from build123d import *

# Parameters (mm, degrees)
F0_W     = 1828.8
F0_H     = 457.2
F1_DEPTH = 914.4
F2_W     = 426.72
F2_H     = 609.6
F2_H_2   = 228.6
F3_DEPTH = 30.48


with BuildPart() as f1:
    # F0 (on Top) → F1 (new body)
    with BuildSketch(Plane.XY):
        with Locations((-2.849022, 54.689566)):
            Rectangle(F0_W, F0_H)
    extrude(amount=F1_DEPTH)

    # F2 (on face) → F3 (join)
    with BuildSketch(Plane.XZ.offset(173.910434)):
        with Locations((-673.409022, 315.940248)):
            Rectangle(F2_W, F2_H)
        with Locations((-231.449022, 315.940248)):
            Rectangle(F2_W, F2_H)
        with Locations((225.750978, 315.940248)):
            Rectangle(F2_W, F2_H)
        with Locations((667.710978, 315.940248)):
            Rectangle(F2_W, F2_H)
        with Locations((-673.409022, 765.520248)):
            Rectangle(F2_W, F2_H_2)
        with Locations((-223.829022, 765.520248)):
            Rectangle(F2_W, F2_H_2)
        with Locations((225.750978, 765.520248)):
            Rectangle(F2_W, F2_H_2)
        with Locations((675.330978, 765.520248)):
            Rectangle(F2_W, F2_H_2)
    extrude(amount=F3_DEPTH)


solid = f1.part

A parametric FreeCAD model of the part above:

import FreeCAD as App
import Part
import Sketcher

V = App.Vector
Q = App.Units.Quantity


def add_polygon(sketch, points):
    """Adds a closed chain of lines whose ends are joined by coincident constraints."""
    first, n = sketch.GeometryCount, len(points)
    for a, b in zip(points, points[1:] + points[:1]):
        sketch.addGeometry(Part.LineSegment(App.Vector(*a, 0), App.Vector(*b, 0)), False)
    for i in range(n):
        sketch.addConstraint(Sketcher.Constraint("Coincident", first + i, 2, first + (i + 1) % n, 1))

doc = App.newDocument("Part")
params = doc.addObject("Spreadsheet::Sheet", "Params")
for row, (alias, value) in enumerate([
    ("sketch1_width", "72 in"),
    ("sketch1_height", "18 in"),
    ("pad1_length", "36 in"),
    ("sketch2_height", "24 in"),
    ("sketch2_height2", "9 in"),
    ("sketch2_width", "16.8 in"),
    ("pad2_length", "1.2 in"),
], start=1):
    params.set(f"A{row}", alias)
    params.set(f"B{row}", "=" + value)
    params.setAlias(f"B{row}", alias)

body = doc.addObject("PartDesign::Body", "Body")

# Sketch on XY plane
sketch1 = body.newObject("Sketcher::SketchObject", "Sketch")
sketch1.AttachmentSupport = (doc.getObject("XY_Plane"), [""])
sketch1.MapMode = "FlatFace"
add_polygon(sketch1, [(-917, 283), (-917, -174), (912, -174), (912, 283)])  # lines 0-3
sketch1.addConstraint(Sketcher.Constraint("Vertical", 0))
sketch1.addConstraint(Sketcher.Constraint("Horizontal", 1))
sketch1.addConstraint(Sketcher.Constraint("Vertical", 2))
sketch1.addConstraint(Sketcher.Constraint("Horizontal", 3))
sketch1.addConstraint(Sketcher.Constraint("DistanceX", 1, 1, 1, 2, Q("72 in")))
sketch1.addConstraint(Sketcher.Constraint("DistanceY", 0, 2, 0, 1, Q("18 in")))
sketch1.addConstraint(Sketcher.Constraint("DistanceX", 0, 2, -1, 1, Q("917.249022 mm")))
sketch1.addConstraint(Sketcher.Constraint("DistanceY", 0, 2, -1, 1, Q("173.910434 mm")))
sketch1.setExpression("Constraints[8]", "Params.sketch1_width")
sketch1.setExpression("Constraints[9]", "Params.sketch1_height")
pad1 = body.newObject("PartDesign::Pad", "Pad")
pad1.Profile = sketch1
pad1.setExpression("Length", "Params.pad1_length")

# Sketch on XZ plane
sketch2 = body.newObject("Sketcher::SketchObject", "Sketch001")
sketch2.AttachmentSupport = (doc.getObject("XZ_Plane"), [""])
sketch2.MapMode = "FlatFace"
sketch2.AttachmentOffset = App.Placement(V(0, 0, 173.910434), App.Rotation())
add_polygon(sketch2, [(-887, 621), (-887, 11), (-460, 11), (-460, 621)])  # lines 0-3
add_polygon(sketch2, [(-445, 621), (-445, 11), (-18, 11), (-18, 621)])  # lines 4-7
add_polygon(sketch2, [(12, 621), (12, 11), (439, 11), (439, 621)])  # lines 8-11
add_polygon(sketch2, [(454, 621), (454, 11), (881, 11), (881, 621)])  # lines 12-15
add_polygon(sketch2, [(-887, 880), (-887, 651), (-460, 651), (-460, 880)])  # lines 16-19
add_polygon(sketch2, [(-437, 880), (-437, 651), (-10, 651), (-10, 880)])  # lines 20-23
add_polygon(sketch2, [(12, 880), (12, 651), (439, 651), (439, 880)])  # lines 24-27
add_polygon(sketch2, [(462, 880), (462, 651), (889, 651), (889, 880)])  # lines 28-31
sketch2.addConstraint(Sketcher.Constraint("Vertical", 0))
sketch2.addConstraint(Sketcher.Constraint("Horizontal", 1))
sketch2.addConstraint(Sketcher.Constraint("Vertical", 2))
sketch2.addConstraint(Sketcher.Constraint("Horizontal", 3))
sketch2.addConstraint(Sketcher.Constraint("Vertical", 4))
sketch2.addConstraint(Sketcher.Constraint("Horizontal", 5))
sketch2.addConstraint(Sketcher.Constraint("Vertical", 6))
sketch2.addConstraint(Sketcher.Constraint("Horizontal", 7))
sketch2.addConstraint(Sketcher.Constraint("Vertical", 8))
sketch2.addConstraint(Sketcher.Constraint("Horizontal", 9))
sketch2.addConstraint(Sketcher.Constraint("Vertical", 10))
sketch2.addConstraint(Sketcher.Constraint("Horizontal", 11))
sketch2.addConstraint(Sketcher.Constraint("Vertical", 12))
sketch2.addConstraint(Sketcher.Constraint("Horizontal", 13))
sketch2.addConstraint(Sketcher.Constraint("Vertical", 14))
sketch2.addConstraint(Sketcher.Constraint("Horizontal", 15))
sketch2.addConstraint(Sketcher.Constraint("Vertical", 16))
sketch2.addConstraint(Sketcher.Constraint("Horizontal", 17))
sketch2.addConstraint(Sketcher.Constraint("Vertical", 18))
sketch2.addConstraint(Sketcher.Constraint("Horizontal", 19))
sketch2.addConstraint(Sketcher.Constraint("Vertical", 20))
sketch2.addConstraint(Sketcher.Constraint("Horizontal", 21))
sketch2.addConstraint(Sketcher.Constraint("Vertical", 22))
sketch2.addConstraint(Sketcher.Constraint("Horizontal", 23))
sketch2.addConstraint(Sketcher.Constraint("Vertical", 24))
sketch2.addConstraint(Sketcher.Constraint("Horizontal", 25))
sketch2.addConstraint(Sketcher.Constraint("Vertical", 26))
sketch2.addConstraint(Sketcher.Constraint("Horizontal", 27))
sketch2.addConstraint(Sketcher.Constraint("Vertical", 28))
sketch2.addConstraint(Sketcher.Constraint("Horizontal", 29))
sketch2.addConstraint(Sketcher.Constraint("Vertical", 30))
sketch2.addConstraint(Sketcher.Constraint("Horizontal", 31))
sketch2.addConstraint(Sketcher.Constraint("Horizontal", 1, 2, 4, 2))
sketch2.addConstraint(Sketcher.Constraint("Horizontal", 3, 2, 6, 2))
sketch2.addConstraint(Sketcher.Constraint("Horizontal", 5, 2, 8, 2))
sketch2.addConstraint(Sketcher.Constraint("Horizontal", 7, 2, 10, 2))
sketch2.addConstraint(Sketcher.Constraint("Horizontal", 9, 2, 12, 2))
sketch2.addConstraint(Sketcher.Constraint("Horizontal", 11, 2, 14, 2))
sketch2.addConstraint(Sketcher.Constraint("Horizontal", 17, 2, 20, 2))
sketch2.addConstraint(Sketcher.Constraint("Horizontal", 19, 2, 22, 2))
sketch2.addConstraint(Sketcher.Constraint("Horizontal", 21, 2, 24, 2))
sketch2.addConstraint(Sketcher.Constraint("Horizontal", 23, 2, 26, 2))
sketch2.addConstraint(Sketcher.Constraint("Horizontal", 25, 2, 28, 2))
sketch2.addConstraint(Sketcher.Constraint("Horizontal", 27, 2, 30, 2))
sketch2.addConstraint(Sketcher.Constraint("Vertical", 3, 2, 16, 2))
sketch2.addConstraint(Sketcher.Constraint("Vertical", 2, 2, 17, 2))
sketch2.addConstraint(Sketcher.Constraint("Vertical", 11, 2, 24, 2))
sketch2.addConstraint(Sketcher.Constraint("Vertical", 10, 2, 25, 2))
sketch2.addConstraint(Sketcher.Constraint("Equal", 3, 5))
sketch2.addConstraint(Sketcher.Constraint("Equal", 7, 9))
sketch2.addConstraint(Sketcher.Constraint("Equal", 11, 13))
sketch2.addConstraint(Sketcher.Constraint("Equal", 19, 21))
sketch2.addConstraint(Sketcher.Constraint("Equal", 27, 29))
sketch2.addConstraint(Sketcher.Constraint("DistanceY", 0, 2, 0, 1, Q("24 in")))
sketch2.addConstraint(Sketcher.Constraint("DistanceY", 16, 2, 16, 1, Q("9 in")))
sketch2.addConstraint(Sketcher.Constraint("DistanceX", 1, 1, 1, 2, Q("16.8 in")))
sketch2.addConstraint(Sketcher.Constraint("DistanceX", 4, 2, 8, 2, Q("18 in")))
sketch2.addConstraint(Sketcher.Constraint("DistanceX", 1, 2, 4, 2, Q("0.6 in")))
sketch2.addConstraint(Sketcher.Constraint("DistanceX", 9, 2, 12, 2, Q("0.6 in")))
sketch2.addConstraint(Sketcher.Constraint("DistanceY", 3, 2, 16, 2, Q("1.2 in")))
sketch2.addConstraint(Sketcher.Constraint("DistanceX", 17, 2, 20, 2, Q("0.9 in")))
sketch2.addConstraint(Sketcher.Constraint("DistanceX", 25, 2, 28, 2, Q("0.9 in")))
sketch2.addConstraint(Sketcher.Constraint("DistanceX", 0, 2, -1, 1, Q("886.769022 mm")))
sketch2.addConstraint(Sketcher.Constraint("DistanceY", -1, 1, 2, 2, Q("620.740248 mm")))
sketch2.setExpression("Constraints[85]", "Params.sketch2_height")
sketch2.setExpression("Constraints[86]", "Params.sketch2_height2")
sketch2.setExpression("Constraints[87]", "Params.sketch2_width")
pad2 = body.newObject("PartDesign::Pad", "Pad001")
pad2.Profile = sketch2
pad2.setExpression("Length", "Params.pad2_length")

doc.recompute()
